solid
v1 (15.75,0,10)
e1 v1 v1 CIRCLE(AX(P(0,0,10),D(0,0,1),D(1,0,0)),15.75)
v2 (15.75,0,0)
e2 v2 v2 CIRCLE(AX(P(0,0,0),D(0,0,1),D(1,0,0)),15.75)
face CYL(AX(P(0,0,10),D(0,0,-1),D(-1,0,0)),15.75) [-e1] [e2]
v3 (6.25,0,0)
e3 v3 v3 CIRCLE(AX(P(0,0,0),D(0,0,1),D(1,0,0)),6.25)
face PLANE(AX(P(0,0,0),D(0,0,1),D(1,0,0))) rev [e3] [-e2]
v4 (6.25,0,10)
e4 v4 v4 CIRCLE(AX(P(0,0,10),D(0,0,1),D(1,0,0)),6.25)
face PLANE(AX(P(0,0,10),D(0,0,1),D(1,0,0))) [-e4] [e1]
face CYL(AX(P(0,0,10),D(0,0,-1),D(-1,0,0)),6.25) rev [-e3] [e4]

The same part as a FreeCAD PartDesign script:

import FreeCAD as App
import Part
import Sketcher
from FreeCAD import Vector
Q = App.Units.Quantity

doc = App.newDocument("Part")
body = doc.addObject("PartDesign::Body", "Body")

sketch1 = body.newObject("Sketcher::SketchObject", "Sketch")
sketch1.AttachmentSupport = (doc.getObject("XY_Plane"), [""])
sketch1.MapMode = "FlatFace"
sketch1.addGeometry(Part.Circle(Vector(0, 0, 0), Vector(0, 0, 1), 16), False)
sketch1.addGeometry(Part.Circle(Vector(0, 0, 0), Vector(0, 0, 1), 6), False)
sketch1.addConstraint(Sketcher.Constraint("Coincident", 0, 3, -1, 1))
sketch1.addConstraint(Sketcher.Constraint("Coincident", 1, 3, -1, 1))
sketch1.addConstraint(Sketcher.Constraint("Diameter", 0, Q("31.5 mm")))
sketch1.addConstraint(Sketcher.Constraint("Diameter", 1, Q("12.5 mm")))
pad1 = body.newObject("PartDesign::Pad", "Pad")
pad1.Profile = sketch1
pad1.Length = 10

doc.recompute()
